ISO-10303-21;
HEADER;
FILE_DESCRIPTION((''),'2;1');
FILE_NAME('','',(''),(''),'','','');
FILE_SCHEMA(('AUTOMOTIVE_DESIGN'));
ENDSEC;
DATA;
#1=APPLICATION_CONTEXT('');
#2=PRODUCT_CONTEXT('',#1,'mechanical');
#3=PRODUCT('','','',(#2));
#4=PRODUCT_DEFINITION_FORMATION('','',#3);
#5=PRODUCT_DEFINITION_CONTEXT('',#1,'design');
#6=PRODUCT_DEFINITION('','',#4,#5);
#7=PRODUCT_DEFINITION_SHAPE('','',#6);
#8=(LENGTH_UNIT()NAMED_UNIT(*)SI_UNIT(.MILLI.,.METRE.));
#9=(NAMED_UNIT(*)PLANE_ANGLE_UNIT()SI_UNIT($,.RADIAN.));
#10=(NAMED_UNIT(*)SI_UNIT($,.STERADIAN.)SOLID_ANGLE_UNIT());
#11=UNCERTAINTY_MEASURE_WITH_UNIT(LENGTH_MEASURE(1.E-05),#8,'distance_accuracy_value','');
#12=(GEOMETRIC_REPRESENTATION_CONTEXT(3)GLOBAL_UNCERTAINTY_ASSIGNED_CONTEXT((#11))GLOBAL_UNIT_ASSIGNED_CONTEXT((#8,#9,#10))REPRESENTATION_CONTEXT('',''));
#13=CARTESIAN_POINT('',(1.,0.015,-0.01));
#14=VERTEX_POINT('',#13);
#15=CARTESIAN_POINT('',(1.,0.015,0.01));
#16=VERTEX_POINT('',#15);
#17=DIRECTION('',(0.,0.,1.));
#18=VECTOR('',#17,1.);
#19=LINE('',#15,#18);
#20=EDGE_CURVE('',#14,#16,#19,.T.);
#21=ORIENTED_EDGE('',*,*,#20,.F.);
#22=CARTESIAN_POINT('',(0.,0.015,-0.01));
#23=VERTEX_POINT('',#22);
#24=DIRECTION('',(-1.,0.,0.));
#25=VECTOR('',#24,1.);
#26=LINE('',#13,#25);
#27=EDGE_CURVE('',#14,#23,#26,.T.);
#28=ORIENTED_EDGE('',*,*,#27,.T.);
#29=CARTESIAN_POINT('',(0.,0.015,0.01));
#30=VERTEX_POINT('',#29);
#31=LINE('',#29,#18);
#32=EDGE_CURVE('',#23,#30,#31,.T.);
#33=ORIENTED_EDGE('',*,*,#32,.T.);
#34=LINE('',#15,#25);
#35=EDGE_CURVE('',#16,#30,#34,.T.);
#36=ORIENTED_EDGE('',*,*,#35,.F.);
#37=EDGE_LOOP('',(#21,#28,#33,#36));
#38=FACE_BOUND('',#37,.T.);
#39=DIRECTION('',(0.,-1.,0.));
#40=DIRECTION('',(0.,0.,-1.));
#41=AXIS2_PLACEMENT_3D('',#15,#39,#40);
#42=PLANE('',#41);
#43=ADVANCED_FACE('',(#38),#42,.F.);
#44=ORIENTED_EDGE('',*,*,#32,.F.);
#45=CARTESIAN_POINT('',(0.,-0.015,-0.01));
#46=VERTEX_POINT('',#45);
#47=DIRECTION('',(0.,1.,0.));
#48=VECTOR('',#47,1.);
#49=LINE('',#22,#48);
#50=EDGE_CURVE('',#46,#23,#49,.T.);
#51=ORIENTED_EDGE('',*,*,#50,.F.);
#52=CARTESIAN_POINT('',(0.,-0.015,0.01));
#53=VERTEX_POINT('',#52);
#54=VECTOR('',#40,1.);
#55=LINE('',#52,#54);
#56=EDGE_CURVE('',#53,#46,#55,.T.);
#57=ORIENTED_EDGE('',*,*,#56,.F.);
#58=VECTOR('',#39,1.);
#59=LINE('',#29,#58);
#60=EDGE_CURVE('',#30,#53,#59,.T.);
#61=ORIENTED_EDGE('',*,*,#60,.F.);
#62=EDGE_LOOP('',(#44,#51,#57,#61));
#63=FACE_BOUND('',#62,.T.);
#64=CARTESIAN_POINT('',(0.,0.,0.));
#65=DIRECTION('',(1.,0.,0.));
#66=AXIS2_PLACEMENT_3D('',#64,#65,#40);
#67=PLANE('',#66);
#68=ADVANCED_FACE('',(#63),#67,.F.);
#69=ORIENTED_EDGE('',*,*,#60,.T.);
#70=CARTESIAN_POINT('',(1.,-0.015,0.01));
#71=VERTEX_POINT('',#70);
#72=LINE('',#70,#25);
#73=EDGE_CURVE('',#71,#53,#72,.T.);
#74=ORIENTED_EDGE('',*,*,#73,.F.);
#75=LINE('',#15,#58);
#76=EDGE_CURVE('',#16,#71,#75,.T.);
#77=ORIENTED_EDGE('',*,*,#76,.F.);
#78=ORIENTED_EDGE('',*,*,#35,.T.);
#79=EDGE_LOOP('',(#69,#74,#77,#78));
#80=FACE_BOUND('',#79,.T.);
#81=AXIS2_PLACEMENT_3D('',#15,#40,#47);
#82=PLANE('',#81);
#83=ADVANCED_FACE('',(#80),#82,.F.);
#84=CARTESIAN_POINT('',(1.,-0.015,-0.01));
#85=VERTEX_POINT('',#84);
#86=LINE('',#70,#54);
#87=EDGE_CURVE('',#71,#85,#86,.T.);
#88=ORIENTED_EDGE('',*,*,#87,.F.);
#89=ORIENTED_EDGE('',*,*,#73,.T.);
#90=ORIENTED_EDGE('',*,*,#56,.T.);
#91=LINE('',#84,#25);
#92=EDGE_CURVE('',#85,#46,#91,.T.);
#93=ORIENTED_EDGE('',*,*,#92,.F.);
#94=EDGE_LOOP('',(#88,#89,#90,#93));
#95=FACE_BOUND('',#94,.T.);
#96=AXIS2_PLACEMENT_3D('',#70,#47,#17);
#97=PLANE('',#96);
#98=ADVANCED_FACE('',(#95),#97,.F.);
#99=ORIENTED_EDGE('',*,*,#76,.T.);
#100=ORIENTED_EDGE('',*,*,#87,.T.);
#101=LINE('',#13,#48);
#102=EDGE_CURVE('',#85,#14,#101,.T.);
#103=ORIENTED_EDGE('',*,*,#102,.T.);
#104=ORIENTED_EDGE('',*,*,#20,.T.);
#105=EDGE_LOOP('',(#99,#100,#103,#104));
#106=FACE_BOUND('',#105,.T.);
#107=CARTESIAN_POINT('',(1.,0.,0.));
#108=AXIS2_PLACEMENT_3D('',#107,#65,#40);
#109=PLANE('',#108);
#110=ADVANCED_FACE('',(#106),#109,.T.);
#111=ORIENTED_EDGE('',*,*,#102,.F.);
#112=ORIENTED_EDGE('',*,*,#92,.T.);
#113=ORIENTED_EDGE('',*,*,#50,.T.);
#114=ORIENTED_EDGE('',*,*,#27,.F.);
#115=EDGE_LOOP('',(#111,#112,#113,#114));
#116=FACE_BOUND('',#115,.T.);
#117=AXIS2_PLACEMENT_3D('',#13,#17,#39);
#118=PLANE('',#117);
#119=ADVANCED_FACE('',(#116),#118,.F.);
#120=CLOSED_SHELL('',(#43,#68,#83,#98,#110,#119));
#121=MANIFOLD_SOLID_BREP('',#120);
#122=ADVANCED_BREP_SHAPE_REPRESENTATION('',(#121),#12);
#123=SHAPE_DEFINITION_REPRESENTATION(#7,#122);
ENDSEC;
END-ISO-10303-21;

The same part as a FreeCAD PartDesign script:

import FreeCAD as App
import Part
import Sketcher

V = App.Vector


def add_polygon(sketch, points):
    """Adds a closed chain of lines whose ends are joined by coincident constraints."""
    first, n = sketch.GeometryCount, len(points)
    for a, b in zip(points, points[1:] + points[:1]):
        sketch.addGeometry(Part.LineSegment(App.Vector(*a, 0), App.Vector(*b, 0)), False)
    for i in range(n):
        sketch.addConstraint(Sketcher.Constraint("Coincident", first + i, 2, first + (i + 1) % n, 1))

doc = App.newDocument("Part")
body = doc.addObject("PartDesign::Body", "Body")

# Sketch on YZ plane
sketch1 = doc.addObject("Sketcher::SketchObject", "Sketch")
body.addObject(sketch1)
sketch1.AttachmentSupport = (doc.YZ_Plane, [""])
sketch1.MapMode = "FlatFace"
add_polygon(sketch1, [(0.015, 0.01), (-0.015, 0.01), (-0.015, -0.01), (0.015, -0.01)])  # lines 0-3
sketch1.addConstraint([
    Sketcher.Constraint("Horizontal", 0),
    Sketcher.Constraint("Vertical", 1),
    Sketcher.Constraint("Horizontal", 2),
    Sketcher.Constraint("Vertical", 3),
    Sketcher.Constraint("Symmetric", 0, 2, 2, 2, -1, 1),
    Sketcher.Constraint("DistanceX", 0, 2, 0, 1, 0.03),
    Sketcher.Constraint("DistanceY", 1, 2, 1, 1, 0.02),
])
pad1 = doc.addObject("PartDesign::Pad", "Pad")
body.addObject(pad1)
pad1.Profile = sketch1
pad1.Length = 1

doc.recompute()
